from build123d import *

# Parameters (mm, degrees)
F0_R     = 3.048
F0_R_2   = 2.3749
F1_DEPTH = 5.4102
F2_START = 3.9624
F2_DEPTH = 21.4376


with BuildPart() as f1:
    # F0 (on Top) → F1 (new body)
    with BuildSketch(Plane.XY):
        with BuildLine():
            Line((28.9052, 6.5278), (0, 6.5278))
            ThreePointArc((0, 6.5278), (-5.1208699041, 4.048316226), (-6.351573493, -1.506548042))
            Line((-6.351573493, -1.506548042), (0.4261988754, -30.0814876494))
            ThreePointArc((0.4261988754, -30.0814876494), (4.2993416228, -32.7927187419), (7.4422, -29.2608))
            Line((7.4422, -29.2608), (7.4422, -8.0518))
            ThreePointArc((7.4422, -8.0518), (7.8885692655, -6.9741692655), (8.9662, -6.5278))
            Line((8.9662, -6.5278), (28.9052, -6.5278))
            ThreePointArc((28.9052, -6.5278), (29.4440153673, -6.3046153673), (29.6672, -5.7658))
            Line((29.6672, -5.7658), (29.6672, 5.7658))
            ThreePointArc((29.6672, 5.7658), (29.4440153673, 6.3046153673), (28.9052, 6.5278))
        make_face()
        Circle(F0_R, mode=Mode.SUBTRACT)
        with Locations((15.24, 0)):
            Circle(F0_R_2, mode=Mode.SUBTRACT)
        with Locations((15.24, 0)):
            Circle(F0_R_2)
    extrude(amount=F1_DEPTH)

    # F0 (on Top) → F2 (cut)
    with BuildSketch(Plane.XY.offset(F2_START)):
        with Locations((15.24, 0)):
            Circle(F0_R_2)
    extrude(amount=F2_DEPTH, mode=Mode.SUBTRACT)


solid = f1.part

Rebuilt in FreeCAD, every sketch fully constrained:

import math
import FreeCAD as App
import Part
import Sketcher
from FreeCAD import Vector
Q = App.Units.Quantity

doc = App.newDocument("Part")
body = doc.addObject("PartDesign::Body", "Body")

# Sketch on XY plane
sketch1 = body.newObject("Sketcher::SketchObject", "Sketch")
sketch1.AttachmentSupport = (doc.getObject("XY_Plane"), [""])
sketch1.MapMode = "FlatFace"
sketch1.addGeometry([
    Part.LineSegment(Vector(28.9, 6.5, 0), Vector(0, 6.5, 0)),  # 0
    Part.ArcOfCircle(Part.Circle(Vector(0, 0, 0), Vector(0, 0, 1), 6.5), math.radians(90), math.radians(193)),  # 1
    Part.LineSegment(Vector(-6.4, -1.5, 0), Vector(0.4, -30.1, 0)),  # 2
    Part.ArcOfCircle(Part.Circle(Vector(3.9, -29.3, 0), Vector(0, 0, 1), 3.6), math.radians(-167), math.radians(0)),  # 3
    Part.LineSegment(Vector(7.4, -29.3, 0), Vector(7.4, -8.1, 0)),  # 4
    Part.ArcOfCircle(Part.Circle(Vector(9, -8.1, 0), Vector(0, 0, 1), 1.5), math.radians(90), math.radians(180)),  # 5
    Part.LineSegment(Vector(9, -6.5, 0), Vector(28.9, -6.5, 0)),  # 6
    Part.ArcOfCircle(Part.Circle(Vector(28.9, -5.8, 0), Vector(0, 0, 1), 0.8), math.radians(-90), math.radians(0)),  # 7
    Part.LineSegment(Vector(29.7, -5.8, 0), Vector(29.7, 5.8, 0)),  # 8
    Part.ArcOfCircle(Part.Circle(Vector(28.9, 5.8, 0), Vector(0, 0, 1), 0.8), math.radians(0), math.radians(90)),  # 9
    Part.Circle(Vector(0, 0, 0), Vector(0, 0, 1), 3),  # 10
], False)
sketch1.addConstraint([
    Sketcher.Constraint("Tangent", 0, 2, 1, 1),
    Sketcher.Constraint("Tangent", 1, 2, 2, 1),
    Sketcher.Constraint("Tangent", 2, 2, 3, 1),
    Sketcher.Constraint("Tangent", 3, 2, 4, 1),
    Sketcher.Constraint("Tangent", 4, 2, 5, 2),
    Sketcher.Constraint("Tangent", 5, 1, 6, 1),
    Sketcher.Constraint("Tangent", 6, 2, 7, 1),
    Sketcher.Constraint("Tangent", 7, 2, 8, 1),
    Sketcher.Constraint("Tangent", 8, 2, 9, 1),
    Sketcher.Constraint("Tangent", 9, 2, 0, 1),
    Sketcher.Constraint("Horizontal", 0),
    Sketcher.Constraint("Vertical", 4),
    Sketcher.Constraint("Horizontal", 6),
    Sketcher.Constraint("Vertical", 8),
    Sketcher.Constraint("Coincident", 1, 3, -1, 1),
    Sketcher.Constraint("Coincident", 10, 3, -1, 1),
    Sketcher.Constraint("Equal", 7, 9),
    Sketcher.Constraint("Diameter", 10, Q("0.24 in")),
    Sketcher.Constraint("Radius", 3, Q("0.14 in")),
    Sketcher.Constraint("Radius", 5, Q("0.06 in")),
    Sketcher.Constraint("Radius", 7, Q("0.03 in")),
    Sketcher.Constraint("Radius", 1, Q("0.257 in")),
    Sketcher.Constraint("DistanceX", 0, 2, 0, 1, Q("1.138 in")),
    Sketcher.Constraint("DistanceX", 6, 1, 6, 2, Q("0.785 in")),
    Sketcher.Constraint("DistanceY", 4, 1, 4, 2, Q("0.835 in")),
    Sketcher.Constraint("DistanceY", 8, 1, 8, 2, Q("0.454 in")),
])
pad1 = body.newObject("PartDesign::Pad", "Pad")
pad1.Profile = sketch1
pad1.Length = Q("0.213 in")

# Sketch on XY plane
sketch2 = body.newObject("Sketcher::SketchObject", "Sketch001")
sketch2.AttachmentSupport = (doc.getObject("XY_Plane"), [""])
sketch2.MapMode = "FlatFace"
sketch2.AttachmentOffset = App.Placement(Vector(0, 0, 0.156 * 25.4), App.Rotation())
sketch2.addGeometry(Part.Circle(Vector(15.2, 0, 0), Vector(0, 0, 1), 2.4), False)
sketch2.addConstraint([
    Sketcher.Constraint("PointOnObject", 0, 3, -1),
    Sketcher.Constraint("Diameter", 0, Q("0.187 in")),
    Sketcher.Constraint("DistanceX", -1, 1, 0, 3, Q("0.6 in")),
])
pocket1 = body.newObject("PartDesign::Pocket", "Pocket")
pocket1.Profile = sketch2
pocket1.Length = Q("0.844 in")
pocket1.Reversed = True

doc.recompute()
